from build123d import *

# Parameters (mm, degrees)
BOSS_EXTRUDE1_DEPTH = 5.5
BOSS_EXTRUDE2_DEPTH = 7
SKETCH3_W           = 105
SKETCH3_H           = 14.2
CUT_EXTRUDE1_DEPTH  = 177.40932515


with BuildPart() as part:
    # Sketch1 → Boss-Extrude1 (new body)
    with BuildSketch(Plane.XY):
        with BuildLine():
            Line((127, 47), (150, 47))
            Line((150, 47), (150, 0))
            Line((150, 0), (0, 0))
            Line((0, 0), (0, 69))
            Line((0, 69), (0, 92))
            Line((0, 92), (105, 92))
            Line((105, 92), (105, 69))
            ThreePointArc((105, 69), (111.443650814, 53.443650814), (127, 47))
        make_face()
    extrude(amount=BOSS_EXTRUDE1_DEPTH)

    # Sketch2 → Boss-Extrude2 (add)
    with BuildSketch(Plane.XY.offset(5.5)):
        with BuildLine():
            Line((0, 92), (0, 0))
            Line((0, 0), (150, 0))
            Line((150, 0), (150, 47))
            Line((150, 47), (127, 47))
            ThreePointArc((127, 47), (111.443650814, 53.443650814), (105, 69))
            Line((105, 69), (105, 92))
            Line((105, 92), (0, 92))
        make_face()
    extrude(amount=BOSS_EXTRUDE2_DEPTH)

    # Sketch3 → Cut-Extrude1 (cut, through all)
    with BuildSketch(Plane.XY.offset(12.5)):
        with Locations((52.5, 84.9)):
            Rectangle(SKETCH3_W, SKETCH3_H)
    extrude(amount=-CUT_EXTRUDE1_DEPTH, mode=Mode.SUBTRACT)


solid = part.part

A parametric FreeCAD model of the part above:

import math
import FreeCAD as App
import Part
import Sketcher
from FreeCAD import Vector
Q = App.Units.Quantity

doc = App.newDocument("Part")
body = doc.addObject("PartDesign::Body", "Body")

sketch1 = body.newObject("Sketcher::SketchObject", "Sketch")
sketch1.AttachmentSupport = (doc.getObject("XY_Plane"), [""])
sketch1.MapMode = "FlatFace"
sketch1.addGeometry(Part.LineSegment(Vector(150, 47, 0), Vector(127, 47, 0)), False)
sketch1.addGeometry(Part.ArcOfCircle(Part.Circle(Vector(127, 69, 0), Vector(0, 0, 1), 22), math.radians(180), math.radians(270)), False)
sketch1.addGeometry(Part.LineSegment(Vector(105, 69, 0), Vector(105, 92, 0)), False)
sketch1.addGeometry(Part.LineSegment(Vector(105, 92, 0), Vector(0, 92, 0)), False)
sketch1.addGeometry(Part.LineSegment(Vector(0, 92, 0), Vector(0, 0, 0)), False)
sketch1.addGeometry(Part.LineSegment(Vector(0, 0, 0), Vector(150, 0, 0)), False)
sketch1.addGeometry(Part.LineSegment(Vector(150, 0, 0), Vector(150, 47, 0)), False)
sketch1.addConstraint(Sketcher.Constraint("Tangent", 0, 2, 1, 2))
sketch1.addConstraint(Sketcher.Constraint("Tangent", 1, 1, 2, 1))
sketch1.addConstraint(Sketcher.Constraint("Coincident", 2, 2, 3, 1))
sketch1.addConstraint(Sketcher.Constraint("Coincident", 3, 2, 4, 1))
sketch1.addConstraint(Sketcher.Constraint("Coincident", 4, 2, 5, 1))
sketch1.addConstraint(Sketcher.Constraint("Coincident", 5, 2, 6, 1))
sketch1.addConstraint(Sketcher.Constraint("Coincident", 6, 2, 0, 1))
sketch1.addConstraint(Sketcher.Constraint("Horizontal", 0))
sketch1.addConstraint(Sketcher.Constraint("Vertical", 2))
sketch1.addConstraint(Sketcher.Constraint("Horizontal", 3))
sketch1.addConstraint(Sketcher.Constraint("Vertical", 4))
sketch1.addConstraint(Sketcher.Constraint("Horizontal", 5))
sketch1.addConstraint(Sketcher.Constraint("Vertical", 6))
sketch1.addConstraint(Sketcher.Constraint("Coincident", 4, 2, -1, 1))
sketch1.addConstraint(Sketcher.Constraint("Equal", 0, 2))
sketch1.addConstraint(Sketcher.Constraint("Radius", 1, Q("22 mm")))
sketch1.addConstraint(Sketcher.Constraint("DistanceX", 0, 2, 0, 1, Q("23 mm")))
sketch1.addConstraint(Sketcher.Constraint("DistanceX", 3, 2, 3, 1, Q("105 mm")))
sketch1.addConstraint(Sketcher.Constraint("DistanceY", 4, 2, 4, 1, Q("92 mm")))
pad1 = body.newObject("PartDesign::Pad", "Pad")
pad1.Profile = sketch1
pad1.Length = 5.5

sketch2 = body.newObject("Sketcher::SketchObject", "Sketch001")
sketch2.AttachmentSupport = (doc.getObject("XY_Plane"), [""])
sketch2.MapMode = "FlatFace"
sketch2.AttachmentOffset = App.Placement(Vector(0, 0, 5.5), App.Rotation())
sketch2.addGeometry(Part.LineSegment(Vector(0, 92, 0), Vector(0, 0, 0)), False)
sketch2.addGeometry(Part.LineSegment(Vector(0, 0, 0), Vector(150, 0, 0)), False)
sketch2.addGeometry(Part.LineSegment(Vector(150, 0, 0), Vector(150, 47, 0)), False)
sketch2.addGeometry(Part.LineSegment(Vector(150, 47, 0), Vector(127, 47, 0)), False)
sketch2.addGeometry(Part.ArcOfCircle(Part.Circle(Vector(127, 69, 0), Vector(0, 0, 1), 22), math.radians(180), math.radians(270)), False)
sketch2.addGeometry(Part.LineSegment(Vector(105, 69, 0), Vector(105, 92, 0)), False)
sketch2.addGeometry(Part.LineSegment(Vector(105, 92, 0), Vector(0, 92, 0)), False)
sketch2.addConstraint(Sketcher.Constraint("Coincident", 0, 2, 1, 1))
sketch2.addConstraint(Sketcher.Constraint("Coincident", 1, 2, 2, 1))
sketch2.addConstraint(Sketcher.Constraint("Coincident", 2, 2, 3, 1))
sketch2.addConstraint(Sketcher.Constraint("Tangent", 3, 2, 4, 2))
sketch2.addConstraint(Sketcher.Constraint("Tangent", 4, 1, 5, 1))
sketch2.addConstraint(Sketcher.Constraint("Coincident", 5, 2, 6, 1))
sketch2.addConstraint(Sketcher.Constraint("Coincident", 6, 2, 0, 1))
sketch2.addConstraint(Sketcher.Constraint("Vertical", 0))
sketch2.addConstraint(Sketcher.Constraint("Horizontal", 1))
sketch2.addConstraint(Sketcher.Constraint("Vertical", 2))
sketch2.addConstraint(Sketcher.Constraint("Horizontal", 3))
sketch2.addConstraint(Sketcher.Constraint("Vertical", 5))
sketch2.addConstraint(Sketcher.Constraint("Horizontal", 6))
sketch2.addConstraint(Sketcher.Constraint("Coincident", 0, 2, -1, 1))
sketch2.addConstraint(Sketcher.Constraint("Equal", 3, 5))
sketch2.addConstraint(Sketcher.Constraint("Radius", 4, Q("22 mm")))
sketch2.addConstraint(Sketcher.Constraint("DistanceX", 1, 1, 1, 2, Q("150 mm")))
sketch2.addConstraint(Sketcher.Constraint("DistanceX", 3, 2, 3, 1, Q("23 mm")))
sketch2.addConstraint(Sketcher.Constraint("DistanceY", 0, 2, 0, 1, Q("92 mm")))
pad2 = body.newObject("PartDesign::Pad", "Pad001")
pad2.Profile = sketch2
pad2.Length = 7

sketch3 = body.newObject("Sketcher::SketchObject", "Sketch002")
sketch3.AttachmentSupport = (doc.getObject("XY_Plane"), [""])
sketch3.MapMode = "FlatFace"
sketch3.AttachmentOffset = App.Placement(Vector(0, 0, 12.5), App.Rotation())
sketch3.addGeometry(Part.LineSegment(Vector(0, 92, 0), Vector(0, 77.8, 0)), False)
sketch3.addGeometry(Part.LineSegment(Vector(0, 77.8, 0), Vector(105, 77.8, 0)), False)
sketch3.addGeometry(Part.LineSegment(Vector(105, 77.8, 0), Vector(105, 92, 0)), False)
sketch3.addGeometry(Part.LineSegment(Vector(105, 92, 0), Vector(0, 92, 0)), False)
sketch3.addConstraint(Sketcher.Constraint("Coincident", 0, 2, 1, 1))
sketch3.addConstraint(Sketcher.Constraint("Coincident", 1, 2, 2, 1))
sketch3.addConstraint(Sketcher.Constraint("Coincident", 2, 2, 3, 1))
sketch3.addConstraint(Sketcher.Constraint("Coincident", 3, 2, 0, 1))
sketch3.addConstraint(Sketcher.Constraint("Vertical", 0))
sketch3.addConstraint(Sketcher.Constraint("Horizontal", 1))
sketch3.addConstraint(Sketcher.Constraint("Vertical", 2))
sketch3.addConstraint(Sketcher.Constraint("Horizontal", 3))
sketch3.addConstraint(Sketcher.Constraint("PointOnObject", 0, 2, -2))
sketch3.addConstraint(Sketcher.Constraint("DistanceX", 1, 1, 1, 2, Q("105 mm")))
sketch3.addConstraint(Sketcher.Constraint("DistanceY", 0, 2, 0, 1, Q("14.2 mm")))
sketch3.addConstraint(Sketcher.Constraint("DistanceY", -1, 1, 2, 2, Q("92 mm")))
pocket1 = body.newObject("PartDesign::Pocket", "Pocket")
pocket1.Profile = sketch3
pocket1.Type = "ThroughAll"

doc.recompute()
